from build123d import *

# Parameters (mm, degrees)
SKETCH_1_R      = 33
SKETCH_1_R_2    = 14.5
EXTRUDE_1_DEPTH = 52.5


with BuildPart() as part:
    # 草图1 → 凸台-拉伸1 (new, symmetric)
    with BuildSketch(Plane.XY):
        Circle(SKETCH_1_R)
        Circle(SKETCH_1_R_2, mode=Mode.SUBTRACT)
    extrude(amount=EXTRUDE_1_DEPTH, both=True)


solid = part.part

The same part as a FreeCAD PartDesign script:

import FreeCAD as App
import Part
import Sketcher
from FreeCAD import Vector
Q = App.Units.Quantity

doc = App.newDocument("Part")
body = doc.addObject("PartDesign::Body", "Body")

sketch1 = doc.addObject("Sketcher::SketchObject", "Sketch")
body.addObject(sketch1)
sketch1.AttachmentSupport = (doc.XY_Plane, [""])
sketch1.MapMode = "FlatFace"
sketch1.addGeometry([
    Part.Circle(Vector(0, 0, 0), Vector(0, 0, 1), 33),
    Part.Circle(Vector(0, 0, 0), Vector(0, 0, 1), 14.5),
], False)
sketch1.addConstraint([
    Sketcher.Constraint("Coincident", 0, 3, -1, 1),
    Sketcher.Constraint("Coincident", 1, 3, -1, 1),
    Sketcher.Constraint("Diameter", 0, Q("66 mm")),
    Sketcher.Constraint("Diameter", 1, Q("29 mm")),
])
pad1 = doc.addObject("PartDesign::Pad", "Pad")
body.addObject(pad1)
pad1.Profile = sketch1
pad1.Length = 105
pad1.Midplane = True

doc.recompute()
